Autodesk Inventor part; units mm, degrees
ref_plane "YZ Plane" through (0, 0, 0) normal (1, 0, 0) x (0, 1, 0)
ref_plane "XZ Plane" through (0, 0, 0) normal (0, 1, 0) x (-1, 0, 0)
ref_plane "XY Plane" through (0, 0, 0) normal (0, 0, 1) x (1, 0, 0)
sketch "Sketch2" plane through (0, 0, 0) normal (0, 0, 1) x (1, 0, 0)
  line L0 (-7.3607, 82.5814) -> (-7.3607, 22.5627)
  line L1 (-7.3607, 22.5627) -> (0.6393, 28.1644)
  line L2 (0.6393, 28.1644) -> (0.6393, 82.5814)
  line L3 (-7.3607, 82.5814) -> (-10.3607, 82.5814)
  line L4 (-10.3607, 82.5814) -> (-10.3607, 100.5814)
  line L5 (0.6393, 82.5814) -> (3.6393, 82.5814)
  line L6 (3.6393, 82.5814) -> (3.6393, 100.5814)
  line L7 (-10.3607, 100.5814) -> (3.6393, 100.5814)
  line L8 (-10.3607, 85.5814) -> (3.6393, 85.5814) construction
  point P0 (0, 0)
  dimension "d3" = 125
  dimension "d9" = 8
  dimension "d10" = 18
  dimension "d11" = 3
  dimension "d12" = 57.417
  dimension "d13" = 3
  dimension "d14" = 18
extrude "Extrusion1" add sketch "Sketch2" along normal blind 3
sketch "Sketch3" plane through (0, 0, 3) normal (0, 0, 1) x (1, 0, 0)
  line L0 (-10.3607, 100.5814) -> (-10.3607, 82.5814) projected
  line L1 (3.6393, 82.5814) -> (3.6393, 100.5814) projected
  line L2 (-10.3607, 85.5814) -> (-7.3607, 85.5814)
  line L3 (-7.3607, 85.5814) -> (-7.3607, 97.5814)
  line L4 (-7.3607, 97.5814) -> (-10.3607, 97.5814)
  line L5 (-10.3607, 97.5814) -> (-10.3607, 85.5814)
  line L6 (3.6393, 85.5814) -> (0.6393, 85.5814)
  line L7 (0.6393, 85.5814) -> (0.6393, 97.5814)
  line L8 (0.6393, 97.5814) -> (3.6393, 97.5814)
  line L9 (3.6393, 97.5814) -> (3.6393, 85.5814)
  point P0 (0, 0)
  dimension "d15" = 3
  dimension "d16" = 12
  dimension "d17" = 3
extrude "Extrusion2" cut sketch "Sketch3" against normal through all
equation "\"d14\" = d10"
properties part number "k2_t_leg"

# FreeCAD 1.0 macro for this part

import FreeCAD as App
import Part
import Sketcher
Q = App.Units.Quantity


def add_polygon(sketch, points):
    """Adds a closed chain of lines whose ends are joined by coincident constraints."""
    first, n = sketch.GeometryCount, len(points)
    for a, b in zip(points, points[1:] + points[:1]):
        sketch.addGeometry(Part.LineSegment(App.Vector(*a, 0), App.Vector(*b, 0)), False)
    for i in range(n):
        sketch.addConstraint(Sketcher.Constraint("Coincident", first + i, 2, first + (i + 1) % n, 1))

doc = App.newDocument("Part")
body = doc.addObject("PartDesign::Body", "Body")

# Sketch on XY plane
sketch1 = doc.addObject("Sketcher::SketchObject", "Sketch")
body.addObject(sketch1)
sketch1.AttachmentSupport = (doc.XY_Plane, [""])
sketch1.MapMode = "FlatFace"
add_polygon(sketch1, [(-10.4, 82.6), (-7.4, 82.6), (-7.4, 22.6), (0.6, 28.2), (0.6, 82.6), (3.6, 82.6), (3.6, 100.6), (-10.4, 100.6)])  # lines 0-7
sketch1.addConstraint([
    Sketcher.Constraint("Horizontal", 0),
    Sketcher.Constraint("Vertical", 1),
    Sketcher.Constraint("Vertical", 3),
    Sketcher.Constraint("Horizontal", 4),
    Sketcher.Constraint("Vertical", 5),
    Sketcher.Constraint("Horizontal", 6),
    Sketcher.Constraint("Vertical", 7),
    Sketcher.Constraint("Horizontal", 0, 2, 3, 2),
    Sketcher.Constraint("Equal", 0, 4),
    Sketcher.Constraint("DistanceX", 0, 1, 0, 2, Q("3 mm")),
    Sketcher.Constraint("DistanceY", 5, 1, 5, 2, Q("18 mm")),
    Sketcher.Constraint("DistanceX", 1, 2, 2, 2, Q("8 mm")),
    Sketcher.Constraint("Angle", 2, Q("35.0002 deg")),
    Sketcher.Constraint("DistanceY", 3, 1, 3, 2, Q("54.417 mm")),
    Sketcher.Constraint("DistanceX", 0, 2, -1, 1, Q("7.3607 mm")),
    Sketcher.Constraint("DistanceY", -1, 1, 0, 2, Q("82.5814 mm")),
])
pad1 = doc.addObject("PartDesign::Pad", "Pad")
body.addObject(pad1)
pad1.Profile = sketch1
pad1.Length = 3

# Sketch on XY plane
sketch2 = doc.addObject("Sketcher::SketchObject", "Sketch001")
body.addObject(sketch2)
sketch2.AttachmentSupport = (doc.XY_Plane, [""])
sketch2.MapMode = "FlatFace"
sketch2.AttachmentOffset = App.Placement(App.Vector(0, 0, 3), App.Rotation())
add_polygon(sketch2, [(-7.4, 97.6), (-10.4, 97.6), (-10.4, 85.6), (-7.4, 85.6)])  # lines 0-3
add_polygon(sketch2, [(0.6, 85.6), (3.6, 85.6), (3.6, 97.6), (0.6, 97.6)])  # lines 4-7
sketch2.addConstraint([
    Sketcher.Constraint("Horizontal", 0),
    Sketcher.Constraint("Vertical", 1),
    Sketcher.Constraint("Horizontal", 2),
    Sketcher.Constraint("Vertical", 3),
    Sketcher.Constraint("Horizontal", 4),
    Sketcher.Constraint("Vertical", 5),
    Sketcher.Constraint("Horizontal", 6),
    Sketcher.Constraint("Vertical", 7),
    Sketcher.Constraint("Horizontal", 2, 2, 4, 2),
    Sketcher.Constraint("Horizontal", 3, 2, 5, 2),
    Sketcher.Constraint("Equal", 2, 4),
    Sketcher.Constraint("DistanceX", 0, 2, 0, 1, Q("3 mm")),
    Sketcher.Constraint("DistanceY", 1, 2, 1, 1, Q("12 mm")),
    Sketcher.Constraint("DistanceX", 2, 2, 4, 2, Q("11 mm")),
    Sketcher.Constraint("DistanceX", 0, 2, -1, 1, Q("10.3607 mm")),
    Sketcher.Constraint("DistanceY", -1, 1, 0, 2, Q("97.5814 mm")),
])
pocket1 = doc.addObject("PartDesign::Pocket", "Pocket")
body.addObject(pocket1)
pocket1.Profile = sketch2
pocket1.Type = "ThroughAll"

doc.recompute()
